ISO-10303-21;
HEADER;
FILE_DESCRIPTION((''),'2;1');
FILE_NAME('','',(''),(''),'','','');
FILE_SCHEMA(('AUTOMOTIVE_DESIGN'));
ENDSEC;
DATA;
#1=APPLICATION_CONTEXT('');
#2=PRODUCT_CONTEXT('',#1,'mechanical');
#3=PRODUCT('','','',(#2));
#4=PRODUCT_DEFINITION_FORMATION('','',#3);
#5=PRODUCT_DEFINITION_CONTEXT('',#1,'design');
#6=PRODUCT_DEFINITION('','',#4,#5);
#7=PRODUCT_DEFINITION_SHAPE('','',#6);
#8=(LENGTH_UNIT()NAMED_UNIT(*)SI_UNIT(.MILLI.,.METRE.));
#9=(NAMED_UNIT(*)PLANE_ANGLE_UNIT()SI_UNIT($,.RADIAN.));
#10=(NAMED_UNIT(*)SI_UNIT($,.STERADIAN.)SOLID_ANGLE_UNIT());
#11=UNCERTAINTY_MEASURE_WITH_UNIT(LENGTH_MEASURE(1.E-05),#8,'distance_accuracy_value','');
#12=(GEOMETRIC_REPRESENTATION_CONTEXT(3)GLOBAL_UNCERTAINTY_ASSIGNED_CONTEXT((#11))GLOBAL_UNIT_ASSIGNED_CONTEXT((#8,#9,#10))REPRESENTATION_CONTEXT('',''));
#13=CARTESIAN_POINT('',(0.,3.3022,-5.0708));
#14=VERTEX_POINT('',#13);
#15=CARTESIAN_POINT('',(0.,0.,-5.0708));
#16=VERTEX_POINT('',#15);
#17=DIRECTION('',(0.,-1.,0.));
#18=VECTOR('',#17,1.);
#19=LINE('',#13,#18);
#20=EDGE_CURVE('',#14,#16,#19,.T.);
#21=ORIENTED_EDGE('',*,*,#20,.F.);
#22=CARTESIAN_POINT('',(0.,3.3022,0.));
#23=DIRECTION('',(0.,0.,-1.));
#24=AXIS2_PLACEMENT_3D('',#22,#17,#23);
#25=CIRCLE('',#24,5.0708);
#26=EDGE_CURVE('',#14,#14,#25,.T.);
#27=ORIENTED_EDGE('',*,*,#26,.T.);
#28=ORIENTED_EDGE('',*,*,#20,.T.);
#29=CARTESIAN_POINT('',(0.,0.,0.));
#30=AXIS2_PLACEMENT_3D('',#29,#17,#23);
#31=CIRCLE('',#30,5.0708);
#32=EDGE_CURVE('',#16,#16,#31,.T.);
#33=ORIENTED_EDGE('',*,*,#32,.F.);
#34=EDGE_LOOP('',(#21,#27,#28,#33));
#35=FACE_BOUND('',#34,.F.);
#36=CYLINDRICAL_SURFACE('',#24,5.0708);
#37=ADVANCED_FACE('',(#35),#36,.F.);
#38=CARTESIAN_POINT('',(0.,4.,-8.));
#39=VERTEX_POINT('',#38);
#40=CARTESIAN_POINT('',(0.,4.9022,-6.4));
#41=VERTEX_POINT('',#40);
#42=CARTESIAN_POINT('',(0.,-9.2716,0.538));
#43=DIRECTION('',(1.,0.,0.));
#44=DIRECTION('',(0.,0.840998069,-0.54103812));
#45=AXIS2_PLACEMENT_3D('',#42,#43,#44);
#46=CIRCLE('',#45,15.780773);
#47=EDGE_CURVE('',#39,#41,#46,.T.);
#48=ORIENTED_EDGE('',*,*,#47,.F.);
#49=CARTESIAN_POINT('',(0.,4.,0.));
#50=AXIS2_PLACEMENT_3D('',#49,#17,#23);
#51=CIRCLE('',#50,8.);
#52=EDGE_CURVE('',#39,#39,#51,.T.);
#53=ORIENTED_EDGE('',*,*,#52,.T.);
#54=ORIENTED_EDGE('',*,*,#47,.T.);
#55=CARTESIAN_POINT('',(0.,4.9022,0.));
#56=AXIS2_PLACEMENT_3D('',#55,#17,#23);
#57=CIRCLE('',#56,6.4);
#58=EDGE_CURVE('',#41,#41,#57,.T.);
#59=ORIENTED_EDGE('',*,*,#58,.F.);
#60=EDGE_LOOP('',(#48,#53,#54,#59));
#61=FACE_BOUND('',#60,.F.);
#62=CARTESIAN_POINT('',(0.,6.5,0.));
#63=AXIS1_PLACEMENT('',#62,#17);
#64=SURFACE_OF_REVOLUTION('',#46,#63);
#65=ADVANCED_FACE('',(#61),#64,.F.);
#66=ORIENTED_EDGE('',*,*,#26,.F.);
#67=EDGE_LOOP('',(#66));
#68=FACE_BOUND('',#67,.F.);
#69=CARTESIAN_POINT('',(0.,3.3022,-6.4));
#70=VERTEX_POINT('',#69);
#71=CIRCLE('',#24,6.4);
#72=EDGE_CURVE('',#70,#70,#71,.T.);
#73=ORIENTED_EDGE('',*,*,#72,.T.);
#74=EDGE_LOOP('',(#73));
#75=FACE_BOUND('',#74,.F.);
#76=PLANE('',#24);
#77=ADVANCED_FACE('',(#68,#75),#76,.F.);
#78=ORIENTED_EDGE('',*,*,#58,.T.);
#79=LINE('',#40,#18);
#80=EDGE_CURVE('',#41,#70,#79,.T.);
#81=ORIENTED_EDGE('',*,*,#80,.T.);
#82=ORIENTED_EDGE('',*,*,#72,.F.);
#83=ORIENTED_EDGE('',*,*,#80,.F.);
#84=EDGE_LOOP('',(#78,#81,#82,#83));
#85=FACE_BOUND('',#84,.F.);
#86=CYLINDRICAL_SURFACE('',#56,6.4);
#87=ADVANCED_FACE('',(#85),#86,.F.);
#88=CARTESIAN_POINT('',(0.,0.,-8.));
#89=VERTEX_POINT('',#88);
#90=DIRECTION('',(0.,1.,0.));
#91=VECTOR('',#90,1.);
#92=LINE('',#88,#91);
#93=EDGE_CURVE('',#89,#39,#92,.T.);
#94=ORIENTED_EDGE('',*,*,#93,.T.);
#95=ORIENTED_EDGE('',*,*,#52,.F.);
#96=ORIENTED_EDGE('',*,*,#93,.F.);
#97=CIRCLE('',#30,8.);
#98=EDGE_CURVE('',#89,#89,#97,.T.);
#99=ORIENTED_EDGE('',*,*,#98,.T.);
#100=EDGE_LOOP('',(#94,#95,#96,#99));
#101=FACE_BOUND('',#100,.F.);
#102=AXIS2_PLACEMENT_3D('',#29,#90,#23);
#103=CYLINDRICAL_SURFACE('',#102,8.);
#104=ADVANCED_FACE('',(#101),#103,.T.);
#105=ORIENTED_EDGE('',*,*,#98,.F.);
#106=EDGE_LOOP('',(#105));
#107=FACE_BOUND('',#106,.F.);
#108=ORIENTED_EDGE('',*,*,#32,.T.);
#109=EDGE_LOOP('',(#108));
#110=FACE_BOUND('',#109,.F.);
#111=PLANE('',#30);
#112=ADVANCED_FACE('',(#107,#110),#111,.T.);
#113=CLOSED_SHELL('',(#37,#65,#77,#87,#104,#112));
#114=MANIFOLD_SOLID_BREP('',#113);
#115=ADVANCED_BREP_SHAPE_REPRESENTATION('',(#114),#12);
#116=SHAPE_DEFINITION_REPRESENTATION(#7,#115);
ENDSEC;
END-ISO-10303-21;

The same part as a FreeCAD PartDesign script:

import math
import FreeCAD as App
import Part
import Sketcher
from FreeCAD import Vector
Q = App.Units.Quantity

doc = App.newDocument("Part")
body = doc.addObject("PartDesign::Body", "Body")

# Sketch on YZ plane
sketch1 = body.newObject("Sketcher::SketchObject", "Sketch")
sketch1.AttachmentSupport = (doc.getObject("YZ_Plane"), [""])
sketch1.MapMode = "FlatFace"
sketch1.addGeometry([
    Part.LineSegment(Vector(3.3, -5.1, 0), Vector(0, -5.1, 0)),  # 0
    Part.LineSegment(Vector(0, -5.1, 0), Vector(0, -8, 0)),  # 1
    Part.LineSegment(Vector(0, -8, 0), Vector(4, -8, 0)),  # 2
    Part.ArcOfCircle(Part.Circle(Vector(-9.3, 0.5, 0), Vector(0, 0, 1), 15.8), math.radians(-32.75), math.radians(-26.08)),  # 3
    Part.LineSegment(Vector(4.9, -6.4, 0), Vector(3.3, -6.4, 0)),  # 4
    Part.LineSegment(Vector(3.3, -6.4, 0), Vector(3.3, -5.1, 0)),  # 5
], False)
sketch1.addConstraint([
    Sketcher.Constraint("Coincident", 0, 2, 1, 1),
    Sketcher.Constraint("Coincident", 1, 2, 2, 1),
    Sketcher.Constraint("Coincident", 2, 2, 3, 1),
    Sketcher.Constraint("Coincident", 3, 2, 4, 1),
    Sketcher.Constraint("Coincident", 4, 2, 5, 1),
    Sketcher.Constraint("Coincident", 5, 2, 0, 1),
    Sketcher.Constraint("Horizontal", 0),
    Sketcher.Constraint("Vertical", 1),
    Sketcher.Constraint("Horizontal", 2),
    Sketcher.Constraint("Horizontal", 4),
    Sketcher.Constraint("Vertical", 5),
    Sketcher.Constraint("PointOnObject", 0, 2, -2),
    Sketcher.Constraint("DistanceX", 4, 2, 4, 1, Q("0.063 in")),
    Sketcher.Constraint("DistanceY", 2, 2, 3, 2, Q("0.063 in")),
    Sketcher.Constraint("DistanceX", 0, 2, 0, 1, Q("0.13 in")),
    Sketcher.Constraint("DistanceX", 2, 1, 2, 2, 4.0),
    Sketcher.Constraint("Radius", 3, Q("0.6213 in")),
    Sketcher.Constraint("DistanceY", 1, 2, -1, 1, 8.0),
    Sketcher.Constraint("DistanceY", 1, 2, 1, 1, 2.9292),
])
revolution = body.newObject("PartDesign::Revolution", "Revolution")
revolution.Profile = sketch1
revolution.ReferenceAxis = (sketch1, ["H_Axis"])
revolution.Angle = 360

doc.recompute()
